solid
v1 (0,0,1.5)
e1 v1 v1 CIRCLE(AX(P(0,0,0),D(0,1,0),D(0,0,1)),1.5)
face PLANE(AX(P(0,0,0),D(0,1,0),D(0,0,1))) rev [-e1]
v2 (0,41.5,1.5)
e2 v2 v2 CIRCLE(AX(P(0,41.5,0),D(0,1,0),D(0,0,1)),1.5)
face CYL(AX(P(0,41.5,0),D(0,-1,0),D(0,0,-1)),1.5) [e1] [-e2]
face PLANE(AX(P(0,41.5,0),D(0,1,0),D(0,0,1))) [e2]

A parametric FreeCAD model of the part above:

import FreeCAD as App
import Part
import Sketcher
from FreeCAD import Vector

doc = App.newDocument("Part")
params = doc.addObject("Spreadsheet::Sheet", "Params")
for row, (alias, value) in enumerate([
    ("sketch1_diameter", "3 mm"),
    ("pad1_length", "41.5 mm"),
], start=1):
    params.set(f"A{row}", alias)
    params.set(f"B{row}", "=" + value)
    params.setAlias(f"B{row}", alias)

body = doc.addObject("PartDesign::Body", "Body")

# Sketch on XZ plane
sketch1 = doc.addObject("Sketcher::SketchObject", "Sketch")
body.addObject(sketch1)
sketch1.AttachmentSupport = (doc.XZ_Plane, [""])
sketch1.MapMode = "FlatFace"
sketch1.addGeometry(Part.Circle(Vector(0, 0, 0), Vector(0, 0, 1), 1.5), False)
sketch1.addConstraint([
    Sketcher.Constraint("Coincident", 0, 3, -1, 1),
    Sketcher.Constraint("Diameter", 0, 3.0),
])
sketch1.setExpression("Constraints[1]", "Params.sketch1_diameter")
pad1 = doc.addObject("PartDesign::Pad", "Pad")
body.addObject(pad1)
pad1.Profile = sketch1
pad1.setExpression("Length", "Params.pad1_length")
pad1.Reversed = True

doc.recompute()
